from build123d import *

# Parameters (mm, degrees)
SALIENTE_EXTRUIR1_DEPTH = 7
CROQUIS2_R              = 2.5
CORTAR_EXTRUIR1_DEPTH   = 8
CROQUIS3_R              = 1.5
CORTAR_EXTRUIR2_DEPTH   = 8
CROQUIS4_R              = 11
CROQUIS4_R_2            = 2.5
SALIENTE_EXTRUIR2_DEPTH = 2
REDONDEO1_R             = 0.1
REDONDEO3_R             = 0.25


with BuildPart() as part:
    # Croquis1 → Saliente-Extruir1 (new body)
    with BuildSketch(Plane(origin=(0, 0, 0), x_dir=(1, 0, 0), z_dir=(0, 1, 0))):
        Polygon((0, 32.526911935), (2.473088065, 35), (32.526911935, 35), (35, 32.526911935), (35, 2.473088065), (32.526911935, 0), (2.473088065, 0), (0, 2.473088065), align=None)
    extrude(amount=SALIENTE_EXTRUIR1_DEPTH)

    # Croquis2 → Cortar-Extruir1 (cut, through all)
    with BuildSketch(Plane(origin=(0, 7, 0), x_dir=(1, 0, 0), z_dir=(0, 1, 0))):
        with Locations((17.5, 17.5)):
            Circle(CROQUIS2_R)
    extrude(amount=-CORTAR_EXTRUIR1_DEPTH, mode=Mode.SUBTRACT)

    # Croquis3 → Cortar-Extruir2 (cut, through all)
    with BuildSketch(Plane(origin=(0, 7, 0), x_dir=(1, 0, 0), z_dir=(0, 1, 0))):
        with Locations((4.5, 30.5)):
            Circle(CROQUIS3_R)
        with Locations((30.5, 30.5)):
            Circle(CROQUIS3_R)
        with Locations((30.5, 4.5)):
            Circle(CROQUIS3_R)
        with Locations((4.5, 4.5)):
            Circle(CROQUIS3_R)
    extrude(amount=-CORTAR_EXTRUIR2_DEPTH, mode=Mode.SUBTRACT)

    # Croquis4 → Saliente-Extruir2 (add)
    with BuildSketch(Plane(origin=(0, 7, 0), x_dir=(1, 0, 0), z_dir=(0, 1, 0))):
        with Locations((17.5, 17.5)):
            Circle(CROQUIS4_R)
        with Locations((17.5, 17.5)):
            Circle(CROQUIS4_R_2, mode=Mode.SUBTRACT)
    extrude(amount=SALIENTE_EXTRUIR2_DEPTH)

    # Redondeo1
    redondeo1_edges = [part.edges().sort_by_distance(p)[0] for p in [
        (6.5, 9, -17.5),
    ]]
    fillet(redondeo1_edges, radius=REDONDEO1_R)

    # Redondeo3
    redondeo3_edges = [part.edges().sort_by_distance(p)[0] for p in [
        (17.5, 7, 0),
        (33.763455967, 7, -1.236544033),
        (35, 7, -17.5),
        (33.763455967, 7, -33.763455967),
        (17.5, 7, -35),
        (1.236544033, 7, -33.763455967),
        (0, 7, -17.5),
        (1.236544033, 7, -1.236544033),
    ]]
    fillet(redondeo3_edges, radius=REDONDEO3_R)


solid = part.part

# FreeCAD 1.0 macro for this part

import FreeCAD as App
import Part
import Sketcher
from FreeCAD import Vector
Q = App.Units.Quantity


def edges_at(feature, points):
    """Names of the edges that pass closest to the given points."""
    edges = feature.Shape.Edges
    near = lambda p: min(range(len(edges)), key=lambda i: edges[i].distToShape(Part.Vertex(*p))[0])
    return sorted({f"Edge{near(p) + 1}" for p in points})

doc = App.newDocument("Part")
body = doc.addObject("PartDesign::Body", "Body")

sketch1 = body.newObject("Sketcher::SketchObject", "Sketch")
sketch1.AttachmentSupport = (doc.getObject("XZ_Plane"), [""])
sketch1.MapMode = "FlatFace"
sketch1.addGeometry([
    Part.LineSegment(Vector(2.473088, -35, 0), Vector(0, -32.526912, 0)),
    Part.LineSegment(Vector(0, -32.526912, 0), Vector(0, -2.473088, 0)),
    Part.LineSegment(Vector(0, -2.473088, 0), Vector(2.473088, 0, 0)),
    Part.LineSegment(Vector(2.473088, 0, 0), Vector(32.526912, 0, 0)),
    Part.LineSegment(Vector(32.526912, 0, 0), Vector(35, -2.473088, 0)),
    Part.LineSegment(Vector(35, -2.473088, 0), Vector(35, -32.526912, 0)),
    Part.LineSegment(Vector(35, -32.526912, 0), Vector(32.526912, -35, 0)),
    Part.LineSegment(Vector(32.526912, -35, 0), Vector(2.473088, -35, 0)),
], False)
sketch1.addConstraint([
    Sketcher.Constraint("Coincident", 0, 2, 1, 1),
    Sketcher.Constraint("Coincident", 1, 2, 2, 1),
    Sketcher.Constraint("Coincident", 2, 2, 3, 1),
    Sketcher.Constraint("Coincident", 3, 2, 4, 1),
    Sketcher.Constraint("Coincident", 4, 2, 5, 1),
    Sketcher.Constraint("Coincident", 5, 2, 6, 1),
    Sketcher.Constraint("Coincident", 6, 2, 7, 1),
    Sketcher.Constraint("Coincident", 7, 2, 0, 1),
    Sketcher.Constraint("Vertical", 1),
    Sketcher.Constraint("Horizontal", 3),
    Sketcher.Constraint("Vertical", 5),
    Sketcher.Constraint("Horizontal", 7),
    Sketcher.Constraint("PointOnObject", 0, 2, -2),
    Sketcher.Constraint("PointOnObject", 2, 2, -1),
    Sketcher.Constraint("Perpendicular", 0, 2),
    Sketcher.Constraint("Perpendicular", 2, 4),
    Sketcher.Constraint("Perpendicular", 4, 6),
    Sketcher.Constraint("Horizontal", 1, 2, 4, 2),
    Sketcher.Constraint("Horizontal", 0, 2, 5, 2),
    Sketcher.Constraint("Vertical", 3, 2, 6, 2),
    Sketcher.Constraint("Vertical", 2, 2, 7, 2),
    Sketcher.Constraint("Equal", 7, 1),
    Sketcher.Constraint("DistanceX", -1, 1, 4, 2, Q("35 mm")),
    Sketcher.Constraint("DistanceX", 3, 1, 3, 2, Q("30.053824 mm")),
])
pad1 = body.newObject("PartDesign::Pad", "Pad")
pad1.Profile = sketch1
pad1.Length = 7
pad1.Reversed = True

sketch2 = body.newObject("Sketcher::SketchObject", "Sketch001")
sketch2.AttachmentSupport = (doc.getObject("XZ_Plane"), [""])
sketch2.MapMode = "FlatFace"
sketch2.AttachmentOffset = App.Placement(Vector(0, 0, -7), App.Rotation())
sketch2.addGeometry(Part.Circle(Vector(17.5, -17.5, 0), Vector(0, 0, 1), 2.5), False)
sketch2.addConstraint([
    Sketcher.Constraint("Diameter", 0, Q("5 mm")),
    Sketcher.Constraint("DistanceX", -1, 1, 0, 3, Q("17.5 mm")),
    Sketcher.Constraint("DistanceY", 0, 3, -1, 1, Q("17.5 mm")),
])
pocket1 = body.newObject("PartDesign::Pocket", "Pocket")
pocket1.Profile = sketch2
pocket1.Type = "ThroughAll"
pocket1.Reversed = True

sketch3 = body.newObject("Sketcher::SketchObject", "Sketch002")
sketch3.AttachmentSupport = (doc.getObject("XZ_Plane"), [""])
sketch3.MapMode = "FlatFace"
sketch3.AttachmentOffset = App.Placement(Vector(0, 0, -7), App.Rotation())
sketch3.addGeometry([
    Part.Circle(Vector(4.5, -30.5, 0), Vector(0, 0, 1), 1.5),
    Part.Circle(Vector(30.5, -30.5, 0), Vector(0, 0, 1), 1.5),
    Part.Circle(Vector(30.5, -4.5, 0), Vector(0, 0, 1), 1.5),
    Part.Circle(Vector(4.5, -4.5, 0), Vector(0, 0, 1), 1.5),
], False)
sketch3.addConstraint([
    Sketcher.Constraint("Equal", 0, 1),
    Sketcher.Constraint("Equal", 1, 2),
    Sketcher.Constraint("Equal", 2, 3),
    Sketcher.Constraint("Horizontal", 0, 3, 1, 3),
    Sketcher.Constraint("Horizontal", 2, 3, 3, 3),
    Sketcher.Constraint("Vertical", 1, 3, 2, 3),
    Sketcher.Constraint("Vertical", 0, 3, 3, 3),
    Sketcher.Constraint("Diameter", 0, Q("3 mm")),
    Sketcher.Constraint("DistanceX", 0, 3, 1, 3, Q("26 mm")),
    Sketcher.Constraint("DistanceY", 1, 3, 2, 3, Q("26 mm")),
    Sketcher.Constraint("DistanceX", -1, 1, 0, 3, Q("4.5 mm")),
    Sketcher.Constraint("DistanceY", 0, 3, -1, 1, Q("30.5 mm")),
])
pocket2 = body.newObject("PartDesign::Pocket", "Pocket001")
pocket2.Profile = sketch3
pocket2.Type = "ThroughAll"
pocket2.Reversed = True

sketch4 = body.newObject("Sketcher::SketchObject", "Sketch003")
sketch4.AttachmentSupport = (doc.getObject("XZ_Plane"), [""])
sketch4.MapMode = "FlatFace"
sketch4.AttachmentOffset = App.Placement(Vector(0, 0, -7), App.Rotation())
sketch4.addGeometry([
    Part.Circle(Vector(17.5, -17.5, 0), Vector(0, 0, 1), 11),
    Part.Circle(Vector(17.5, -17.5, 0), Vector(0, 0, 1), 2.5),
], False)
sketch4.addConstraint([
    Sketcher.Constraint("Coincident", 1, 3, 0, 3),
    Sketcher.Constraint("Diameter", 0, Q("22 mm")),
    Sketcher.Constraint("Diameter", 1, Q("5 mm")),
    Sketcher.Constraint("DistanceX", -1, 1, 0, 3, Q("17.5 mm")),
    Sketcher.Constraint("DistanceY", 0, 3, -1, 1, Q("17.5 mm")),
])
pad2 = body.newObject("PartDesign::Pad", "Pad001")
pad2.Profile = sketch4
pad2.Length = 2
pad2.Reversed = True
doc.recompute()

fillet = body.newObject("PartDesign::Fillet", "Fillet")
fillet.Base = (pad2, edges_at(pad2, [(6.5, 9, -17.5)]))
fillet.Radius = 0.1
doc.recompute()

fillet2 = body.newObject("PartDesign::Fillet", "Fillet001")
fillet2.Base = (fillet, edges_at(fillet, [
    (17.5, 7, 0),
    (33.763, 7, -1.237),
    (35, 7, -17.5),
    (33.763, 7, -33.763),
    (17.5, 7, -35),
    (1.237, 7, -33.763),
    (0, 7, -17.5),
    (1.237, 7, -1.237),
]))
fillet2.Radius = 0.25

doc.recompute()
